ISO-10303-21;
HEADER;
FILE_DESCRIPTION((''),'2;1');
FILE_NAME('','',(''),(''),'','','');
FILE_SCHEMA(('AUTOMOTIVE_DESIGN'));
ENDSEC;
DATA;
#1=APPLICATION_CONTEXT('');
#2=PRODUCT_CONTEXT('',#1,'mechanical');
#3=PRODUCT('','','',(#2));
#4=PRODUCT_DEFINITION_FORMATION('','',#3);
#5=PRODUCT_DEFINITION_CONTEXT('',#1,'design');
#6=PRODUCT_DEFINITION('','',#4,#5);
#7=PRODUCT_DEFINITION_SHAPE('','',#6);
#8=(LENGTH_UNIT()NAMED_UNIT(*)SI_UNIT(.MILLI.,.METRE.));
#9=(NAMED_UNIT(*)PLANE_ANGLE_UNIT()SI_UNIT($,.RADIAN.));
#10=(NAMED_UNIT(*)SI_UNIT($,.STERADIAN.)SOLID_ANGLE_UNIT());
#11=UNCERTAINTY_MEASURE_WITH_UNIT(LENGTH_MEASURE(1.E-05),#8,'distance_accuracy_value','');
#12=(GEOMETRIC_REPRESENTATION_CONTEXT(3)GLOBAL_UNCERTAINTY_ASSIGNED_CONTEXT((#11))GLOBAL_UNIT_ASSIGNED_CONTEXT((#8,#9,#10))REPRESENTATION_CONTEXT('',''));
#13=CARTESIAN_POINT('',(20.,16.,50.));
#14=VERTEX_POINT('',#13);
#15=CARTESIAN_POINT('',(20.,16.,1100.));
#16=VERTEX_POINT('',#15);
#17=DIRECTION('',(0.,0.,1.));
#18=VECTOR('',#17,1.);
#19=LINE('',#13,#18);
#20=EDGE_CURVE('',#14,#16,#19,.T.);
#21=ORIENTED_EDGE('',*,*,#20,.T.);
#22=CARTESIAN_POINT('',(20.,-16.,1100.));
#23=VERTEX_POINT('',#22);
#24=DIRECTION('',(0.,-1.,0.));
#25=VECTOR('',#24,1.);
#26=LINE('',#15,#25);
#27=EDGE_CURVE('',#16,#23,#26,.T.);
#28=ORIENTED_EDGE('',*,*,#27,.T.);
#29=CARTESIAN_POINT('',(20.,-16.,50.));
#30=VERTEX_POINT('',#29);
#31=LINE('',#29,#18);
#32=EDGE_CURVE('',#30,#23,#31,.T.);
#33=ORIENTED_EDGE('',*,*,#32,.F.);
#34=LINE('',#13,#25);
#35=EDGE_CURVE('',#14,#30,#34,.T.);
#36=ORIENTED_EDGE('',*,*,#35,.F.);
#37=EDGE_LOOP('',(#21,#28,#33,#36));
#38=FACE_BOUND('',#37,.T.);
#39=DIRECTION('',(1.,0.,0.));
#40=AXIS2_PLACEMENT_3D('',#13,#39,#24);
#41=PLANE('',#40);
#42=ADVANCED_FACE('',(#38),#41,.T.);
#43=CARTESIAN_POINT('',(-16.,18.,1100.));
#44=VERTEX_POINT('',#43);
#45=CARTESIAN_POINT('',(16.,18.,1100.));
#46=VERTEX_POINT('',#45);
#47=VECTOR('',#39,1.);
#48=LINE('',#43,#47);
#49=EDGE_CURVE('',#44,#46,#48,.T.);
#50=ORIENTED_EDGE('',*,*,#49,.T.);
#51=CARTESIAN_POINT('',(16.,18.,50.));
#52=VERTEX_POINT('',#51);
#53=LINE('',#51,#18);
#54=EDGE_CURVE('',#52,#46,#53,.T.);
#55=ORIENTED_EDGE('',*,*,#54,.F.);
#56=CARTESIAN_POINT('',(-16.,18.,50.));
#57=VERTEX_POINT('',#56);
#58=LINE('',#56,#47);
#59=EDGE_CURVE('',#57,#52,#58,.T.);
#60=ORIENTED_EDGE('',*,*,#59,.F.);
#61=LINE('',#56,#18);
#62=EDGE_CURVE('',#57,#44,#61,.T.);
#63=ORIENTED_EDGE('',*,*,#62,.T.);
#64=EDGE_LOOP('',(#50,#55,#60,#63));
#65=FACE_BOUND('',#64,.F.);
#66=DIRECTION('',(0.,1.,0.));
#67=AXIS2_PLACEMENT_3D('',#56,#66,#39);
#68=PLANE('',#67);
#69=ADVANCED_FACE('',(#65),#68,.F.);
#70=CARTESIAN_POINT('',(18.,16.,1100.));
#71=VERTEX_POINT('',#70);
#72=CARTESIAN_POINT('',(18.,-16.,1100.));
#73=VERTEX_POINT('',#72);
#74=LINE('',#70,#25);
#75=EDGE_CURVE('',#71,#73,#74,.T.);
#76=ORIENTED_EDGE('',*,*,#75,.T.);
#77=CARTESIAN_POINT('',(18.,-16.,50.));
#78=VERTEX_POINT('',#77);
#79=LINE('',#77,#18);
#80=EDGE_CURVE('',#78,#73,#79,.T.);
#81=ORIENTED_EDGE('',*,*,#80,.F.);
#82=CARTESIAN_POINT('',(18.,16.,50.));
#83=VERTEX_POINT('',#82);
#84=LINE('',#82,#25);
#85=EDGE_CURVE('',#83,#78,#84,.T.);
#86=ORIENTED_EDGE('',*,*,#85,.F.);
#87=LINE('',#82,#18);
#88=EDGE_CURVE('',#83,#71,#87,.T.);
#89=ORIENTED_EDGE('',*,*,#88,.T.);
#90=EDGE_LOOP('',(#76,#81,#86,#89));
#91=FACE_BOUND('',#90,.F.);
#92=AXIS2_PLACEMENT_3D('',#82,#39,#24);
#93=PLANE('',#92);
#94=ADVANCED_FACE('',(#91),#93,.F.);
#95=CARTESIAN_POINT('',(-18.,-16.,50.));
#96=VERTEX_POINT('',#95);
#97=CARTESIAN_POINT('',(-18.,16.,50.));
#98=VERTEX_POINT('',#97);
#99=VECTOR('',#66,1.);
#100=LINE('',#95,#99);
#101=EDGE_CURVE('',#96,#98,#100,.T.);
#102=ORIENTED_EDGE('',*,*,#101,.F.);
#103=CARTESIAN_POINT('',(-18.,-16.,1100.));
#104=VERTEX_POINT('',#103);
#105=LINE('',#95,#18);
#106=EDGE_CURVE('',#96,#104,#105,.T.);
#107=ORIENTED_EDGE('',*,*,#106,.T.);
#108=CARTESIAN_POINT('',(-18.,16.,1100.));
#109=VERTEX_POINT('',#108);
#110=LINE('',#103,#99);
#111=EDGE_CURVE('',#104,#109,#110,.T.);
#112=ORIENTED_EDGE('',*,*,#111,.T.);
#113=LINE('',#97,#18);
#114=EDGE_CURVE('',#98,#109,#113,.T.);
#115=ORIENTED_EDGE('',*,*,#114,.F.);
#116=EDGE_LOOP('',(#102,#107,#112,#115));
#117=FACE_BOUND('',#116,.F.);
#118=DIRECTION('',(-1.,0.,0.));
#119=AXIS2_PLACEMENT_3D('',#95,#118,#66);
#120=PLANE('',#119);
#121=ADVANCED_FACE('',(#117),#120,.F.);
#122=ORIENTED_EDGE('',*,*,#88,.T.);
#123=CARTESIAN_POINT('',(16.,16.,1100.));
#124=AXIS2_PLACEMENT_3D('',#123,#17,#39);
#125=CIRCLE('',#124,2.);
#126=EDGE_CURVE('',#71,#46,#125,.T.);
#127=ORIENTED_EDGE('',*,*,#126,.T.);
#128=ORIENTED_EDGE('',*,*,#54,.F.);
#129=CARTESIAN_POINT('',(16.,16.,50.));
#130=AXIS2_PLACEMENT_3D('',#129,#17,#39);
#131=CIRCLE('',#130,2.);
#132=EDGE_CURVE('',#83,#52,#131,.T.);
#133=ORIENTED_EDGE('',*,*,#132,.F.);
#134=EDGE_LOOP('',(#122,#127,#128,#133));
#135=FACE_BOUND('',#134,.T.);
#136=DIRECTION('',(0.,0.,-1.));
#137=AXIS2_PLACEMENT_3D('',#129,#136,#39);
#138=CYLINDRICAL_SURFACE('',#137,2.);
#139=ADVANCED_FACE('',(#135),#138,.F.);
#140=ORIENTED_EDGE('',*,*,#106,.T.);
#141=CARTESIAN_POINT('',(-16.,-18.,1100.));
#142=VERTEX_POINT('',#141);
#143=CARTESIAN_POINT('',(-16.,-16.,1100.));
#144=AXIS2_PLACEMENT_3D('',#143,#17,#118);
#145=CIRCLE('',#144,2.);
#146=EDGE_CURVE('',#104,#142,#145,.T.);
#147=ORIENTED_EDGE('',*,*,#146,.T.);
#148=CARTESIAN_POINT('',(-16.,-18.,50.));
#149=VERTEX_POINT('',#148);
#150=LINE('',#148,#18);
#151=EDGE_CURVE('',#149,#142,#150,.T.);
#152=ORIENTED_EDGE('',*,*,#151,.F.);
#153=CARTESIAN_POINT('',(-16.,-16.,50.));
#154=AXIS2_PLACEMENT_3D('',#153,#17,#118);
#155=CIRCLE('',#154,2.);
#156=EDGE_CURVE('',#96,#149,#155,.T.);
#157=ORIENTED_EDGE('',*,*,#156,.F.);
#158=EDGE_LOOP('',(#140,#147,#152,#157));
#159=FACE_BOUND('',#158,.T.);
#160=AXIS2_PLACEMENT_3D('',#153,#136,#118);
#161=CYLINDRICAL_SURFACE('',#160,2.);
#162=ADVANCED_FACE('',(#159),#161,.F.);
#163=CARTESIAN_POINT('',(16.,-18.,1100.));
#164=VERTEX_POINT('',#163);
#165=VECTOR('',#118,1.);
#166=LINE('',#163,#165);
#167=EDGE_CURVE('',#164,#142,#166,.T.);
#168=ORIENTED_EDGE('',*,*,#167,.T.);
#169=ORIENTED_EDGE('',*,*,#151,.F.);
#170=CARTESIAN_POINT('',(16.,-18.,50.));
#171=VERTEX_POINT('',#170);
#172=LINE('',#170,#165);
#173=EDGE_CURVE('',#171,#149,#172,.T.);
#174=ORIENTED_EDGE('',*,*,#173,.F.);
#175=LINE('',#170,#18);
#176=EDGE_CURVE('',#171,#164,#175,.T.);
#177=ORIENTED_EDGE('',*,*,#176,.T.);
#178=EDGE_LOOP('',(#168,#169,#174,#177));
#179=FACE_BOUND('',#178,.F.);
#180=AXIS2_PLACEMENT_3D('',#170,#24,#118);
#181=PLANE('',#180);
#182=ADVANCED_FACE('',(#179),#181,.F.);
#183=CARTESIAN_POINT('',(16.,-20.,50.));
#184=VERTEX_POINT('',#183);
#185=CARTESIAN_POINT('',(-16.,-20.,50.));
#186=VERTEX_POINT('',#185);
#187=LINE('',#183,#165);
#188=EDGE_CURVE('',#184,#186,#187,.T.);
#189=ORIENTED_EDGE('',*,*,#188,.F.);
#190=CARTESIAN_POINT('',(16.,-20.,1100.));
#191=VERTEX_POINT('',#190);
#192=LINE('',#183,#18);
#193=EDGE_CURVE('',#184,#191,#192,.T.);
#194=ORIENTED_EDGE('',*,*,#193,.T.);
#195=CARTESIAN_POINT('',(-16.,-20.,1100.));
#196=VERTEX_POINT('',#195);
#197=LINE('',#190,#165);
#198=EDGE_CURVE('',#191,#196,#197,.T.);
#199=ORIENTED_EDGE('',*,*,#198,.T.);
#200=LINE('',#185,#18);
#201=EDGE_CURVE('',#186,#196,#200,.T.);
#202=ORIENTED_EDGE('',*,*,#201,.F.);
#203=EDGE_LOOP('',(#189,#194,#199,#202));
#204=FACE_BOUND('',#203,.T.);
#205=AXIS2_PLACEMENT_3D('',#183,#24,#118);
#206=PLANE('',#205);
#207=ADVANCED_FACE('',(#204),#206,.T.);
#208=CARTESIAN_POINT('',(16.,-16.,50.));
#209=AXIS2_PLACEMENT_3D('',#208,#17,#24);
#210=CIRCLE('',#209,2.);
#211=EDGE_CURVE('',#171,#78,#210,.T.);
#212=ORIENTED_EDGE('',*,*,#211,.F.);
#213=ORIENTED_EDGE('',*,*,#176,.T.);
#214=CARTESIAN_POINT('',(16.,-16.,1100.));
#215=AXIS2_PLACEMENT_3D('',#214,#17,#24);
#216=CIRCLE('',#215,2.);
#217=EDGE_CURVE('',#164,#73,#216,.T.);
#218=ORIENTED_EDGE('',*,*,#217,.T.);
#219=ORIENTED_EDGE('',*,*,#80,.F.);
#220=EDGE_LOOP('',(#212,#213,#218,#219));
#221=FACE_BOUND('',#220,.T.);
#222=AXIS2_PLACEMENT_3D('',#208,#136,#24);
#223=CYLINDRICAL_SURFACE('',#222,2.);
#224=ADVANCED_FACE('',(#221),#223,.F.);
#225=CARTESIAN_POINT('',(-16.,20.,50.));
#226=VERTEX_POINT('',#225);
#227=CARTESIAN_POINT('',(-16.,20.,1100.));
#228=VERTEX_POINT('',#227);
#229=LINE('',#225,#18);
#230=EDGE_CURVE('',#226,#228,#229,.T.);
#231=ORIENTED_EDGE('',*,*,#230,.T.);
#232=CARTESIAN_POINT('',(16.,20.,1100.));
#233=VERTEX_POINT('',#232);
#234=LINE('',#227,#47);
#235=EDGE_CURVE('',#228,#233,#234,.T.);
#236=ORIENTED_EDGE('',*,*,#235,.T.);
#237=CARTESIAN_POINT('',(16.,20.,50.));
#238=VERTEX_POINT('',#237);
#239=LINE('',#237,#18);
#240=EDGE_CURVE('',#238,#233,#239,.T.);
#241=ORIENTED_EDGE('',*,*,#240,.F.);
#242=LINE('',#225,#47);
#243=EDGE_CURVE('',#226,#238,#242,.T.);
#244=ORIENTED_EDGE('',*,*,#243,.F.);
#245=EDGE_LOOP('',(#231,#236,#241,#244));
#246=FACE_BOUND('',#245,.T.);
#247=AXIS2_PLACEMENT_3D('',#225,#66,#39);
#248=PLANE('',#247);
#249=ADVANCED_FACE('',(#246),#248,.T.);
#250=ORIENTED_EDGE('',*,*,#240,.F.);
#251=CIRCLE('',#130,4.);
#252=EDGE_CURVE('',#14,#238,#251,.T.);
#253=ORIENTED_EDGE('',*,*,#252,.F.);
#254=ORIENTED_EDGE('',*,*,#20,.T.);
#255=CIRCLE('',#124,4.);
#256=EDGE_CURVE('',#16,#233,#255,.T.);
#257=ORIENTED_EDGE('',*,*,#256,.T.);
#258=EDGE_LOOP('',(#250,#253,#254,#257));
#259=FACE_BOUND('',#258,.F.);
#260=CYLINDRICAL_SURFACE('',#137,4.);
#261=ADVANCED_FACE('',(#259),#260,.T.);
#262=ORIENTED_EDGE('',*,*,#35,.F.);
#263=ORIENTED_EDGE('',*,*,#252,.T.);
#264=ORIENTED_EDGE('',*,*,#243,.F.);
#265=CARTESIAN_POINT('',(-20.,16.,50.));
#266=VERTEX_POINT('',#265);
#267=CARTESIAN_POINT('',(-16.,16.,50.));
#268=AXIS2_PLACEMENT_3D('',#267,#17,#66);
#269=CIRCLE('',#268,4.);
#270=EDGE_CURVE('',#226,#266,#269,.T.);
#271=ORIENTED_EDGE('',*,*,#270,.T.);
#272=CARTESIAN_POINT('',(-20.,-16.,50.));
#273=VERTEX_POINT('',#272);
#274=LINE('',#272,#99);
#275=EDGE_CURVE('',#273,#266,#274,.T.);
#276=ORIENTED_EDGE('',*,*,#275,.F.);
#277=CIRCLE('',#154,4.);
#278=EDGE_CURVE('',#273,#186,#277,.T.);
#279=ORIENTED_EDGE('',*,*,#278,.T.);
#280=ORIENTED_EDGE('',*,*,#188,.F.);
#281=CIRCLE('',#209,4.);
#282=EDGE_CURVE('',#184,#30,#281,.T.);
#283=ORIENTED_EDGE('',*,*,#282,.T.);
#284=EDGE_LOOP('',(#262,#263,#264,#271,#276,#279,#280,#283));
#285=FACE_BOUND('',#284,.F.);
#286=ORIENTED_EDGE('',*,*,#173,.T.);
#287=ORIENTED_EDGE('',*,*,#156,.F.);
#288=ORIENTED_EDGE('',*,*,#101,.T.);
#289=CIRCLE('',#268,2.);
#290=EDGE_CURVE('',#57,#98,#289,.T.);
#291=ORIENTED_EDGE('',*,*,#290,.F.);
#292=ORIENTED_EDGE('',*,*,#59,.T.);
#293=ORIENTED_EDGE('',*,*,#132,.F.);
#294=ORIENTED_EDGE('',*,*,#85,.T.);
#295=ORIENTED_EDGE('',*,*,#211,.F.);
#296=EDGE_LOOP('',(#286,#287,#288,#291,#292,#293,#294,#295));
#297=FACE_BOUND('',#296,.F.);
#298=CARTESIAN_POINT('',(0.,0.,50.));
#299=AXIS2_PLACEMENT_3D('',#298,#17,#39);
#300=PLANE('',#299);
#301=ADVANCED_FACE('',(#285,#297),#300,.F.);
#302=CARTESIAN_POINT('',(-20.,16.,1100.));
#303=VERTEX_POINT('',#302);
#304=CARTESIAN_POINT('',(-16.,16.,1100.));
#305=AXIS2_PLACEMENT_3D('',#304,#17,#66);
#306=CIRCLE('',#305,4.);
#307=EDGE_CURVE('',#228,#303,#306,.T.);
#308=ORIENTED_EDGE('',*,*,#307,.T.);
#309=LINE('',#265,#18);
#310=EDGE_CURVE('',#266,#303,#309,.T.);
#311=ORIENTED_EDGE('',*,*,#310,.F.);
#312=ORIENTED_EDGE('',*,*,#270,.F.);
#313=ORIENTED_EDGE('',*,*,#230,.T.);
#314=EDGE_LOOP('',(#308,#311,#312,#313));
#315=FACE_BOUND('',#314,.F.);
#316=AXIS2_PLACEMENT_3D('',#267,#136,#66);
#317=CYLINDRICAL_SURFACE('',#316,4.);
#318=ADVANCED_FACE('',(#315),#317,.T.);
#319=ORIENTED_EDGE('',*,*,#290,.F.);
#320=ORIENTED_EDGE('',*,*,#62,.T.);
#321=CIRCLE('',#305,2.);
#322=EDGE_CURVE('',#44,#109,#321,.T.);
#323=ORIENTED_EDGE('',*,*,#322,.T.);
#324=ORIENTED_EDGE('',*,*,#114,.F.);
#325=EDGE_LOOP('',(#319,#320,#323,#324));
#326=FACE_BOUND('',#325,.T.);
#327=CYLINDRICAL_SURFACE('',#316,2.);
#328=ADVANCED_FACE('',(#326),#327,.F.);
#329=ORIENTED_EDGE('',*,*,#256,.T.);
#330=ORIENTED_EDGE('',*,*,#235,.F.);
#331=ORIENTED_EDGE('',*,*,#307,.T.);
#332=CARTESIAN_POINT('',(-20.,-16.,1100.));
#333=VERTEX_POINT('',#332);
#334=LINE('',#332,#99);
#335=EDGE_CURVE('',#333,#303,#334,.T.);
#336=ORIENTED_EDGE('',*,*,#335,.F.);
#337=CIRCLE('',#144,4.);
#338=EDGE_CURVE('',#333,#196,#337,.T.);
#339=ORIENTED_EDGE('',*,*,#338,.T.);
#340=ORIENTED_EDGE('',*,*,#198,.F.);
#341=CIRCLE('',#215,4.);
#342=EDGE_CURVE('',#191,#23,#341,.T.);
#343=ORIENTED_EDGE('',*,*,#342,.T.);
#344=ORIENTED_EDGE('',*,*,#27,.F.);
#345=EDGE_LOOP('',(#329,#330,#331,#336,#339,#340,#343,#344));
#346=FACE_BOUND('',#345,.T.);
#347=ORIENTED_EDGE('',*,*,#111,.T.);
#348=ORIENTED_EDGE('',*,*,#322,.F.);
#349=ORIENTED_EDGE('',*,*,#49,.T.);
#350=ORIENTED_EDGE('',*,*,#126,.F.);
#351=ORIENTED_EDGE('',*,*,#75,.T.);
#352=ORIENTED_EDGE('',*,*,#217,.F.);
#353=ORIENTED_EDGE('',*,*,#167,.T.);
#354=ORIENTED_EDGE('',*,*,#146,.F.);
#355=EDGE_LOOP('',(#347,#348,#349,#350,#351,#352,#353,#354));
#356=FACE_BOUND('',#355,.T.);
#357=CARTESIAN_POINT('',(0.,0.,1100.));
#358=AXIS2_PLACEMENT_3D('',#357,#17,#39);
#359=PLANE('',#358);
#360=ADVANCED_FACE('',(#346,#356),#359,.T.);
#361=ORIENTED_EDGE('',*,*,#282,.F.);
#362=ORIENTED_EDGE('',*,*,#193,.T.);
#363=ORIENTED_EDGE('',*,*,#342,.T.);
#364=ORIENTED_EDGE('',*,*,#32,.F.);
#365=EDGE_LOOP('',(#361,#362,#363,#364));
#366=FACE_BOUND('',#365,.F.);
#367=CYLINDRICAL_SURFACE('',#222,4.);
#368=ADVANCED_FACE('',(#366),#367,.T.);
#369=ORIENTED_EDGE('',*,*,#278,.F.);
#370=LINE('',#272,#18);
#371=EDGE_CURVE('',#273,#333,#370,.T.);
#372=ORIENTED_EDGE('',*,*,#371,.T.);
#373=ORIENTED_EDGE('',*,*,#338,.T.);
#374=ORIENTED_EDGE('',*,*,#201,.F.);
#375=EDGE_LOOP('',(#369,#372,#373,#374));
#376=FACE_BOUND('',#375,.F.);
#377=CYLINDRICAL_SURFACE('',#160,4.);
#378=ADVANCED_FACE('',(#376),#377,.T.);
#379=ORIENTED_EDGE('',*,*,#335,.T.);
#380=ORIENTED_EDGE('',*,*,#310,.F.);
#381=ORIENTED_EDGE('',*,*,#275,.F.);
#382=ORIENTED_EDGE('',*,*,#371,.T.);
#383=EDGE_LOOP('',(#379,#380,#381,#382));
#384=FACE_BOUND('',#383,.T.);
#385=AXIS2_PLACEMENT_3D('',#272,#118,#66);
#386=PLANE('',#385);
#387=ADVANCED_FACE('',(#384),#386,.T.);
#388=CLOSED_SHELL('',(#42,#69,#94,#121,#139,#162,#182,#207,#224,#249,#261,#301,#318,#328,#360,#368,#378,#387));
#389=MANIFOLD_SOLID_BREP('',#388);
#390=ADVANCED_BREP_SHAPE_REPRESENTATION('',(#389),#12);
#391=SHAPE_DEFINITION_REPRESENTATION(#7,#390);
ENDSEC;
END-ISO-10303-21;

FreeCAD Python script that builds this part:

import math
import FreeCAD as App
import Part
import Sketcher
from FreeCAD import Vector
Q = App.Units.Quantity

doc = App.newDocument("Part")
body = doc.addObject("PartDesign::Body", "Body")

# Sketch on XY plane
sketch1 = body.newObject("Sketcher::SketchObject", "Sketch")
sketch1.AttachmentSupport = (doc.getObject("XY_Plane"), [""])
sketch1.MapMode = "FlatFace"
sketch1.AttachmentOffset = App.Placement(Vector(0, 0, 50), App.Rotation())
sketch1.addGeometry(Part.LineSegment(Vector(-20, 16, 0), Vector(-20, -16, 0)), False)
sketch1.addGeometry(Part.ArcOfCircle(Part.Circle(Vector(-16, -16, 0), Vector(0, 0, 1), 4), math.radians(180), math.radians(270)), False)
sketch1.addGeometry(Part.LineSegment(Vector(-16, -20, 0), Vector(16, -20, 0)), False)
sketch1.addGeometry(Part.ArcOfCircle(Part.Circle(Vector(16, -16, 0), Vector(0, 0, 1), 4), math.radians(-90), math.radians(0)), False)
sketch1.addGeometry(Part.LineSegment(Vector(20, -16, 0), Vector(20, 16, 0)), False)
sketch1.addGeometry(Part.ArcOfCircle(Part.Circle(Vector(16, 16, 0), Vector(0, 0, 1), 4), math.radians(0), math.radians(90)), False)
sketch1.addGeometry(Part.LineSegment(Vector(16, 20, 0), Vector(-16, 20, 0)), False)
sketch1.addGeometry(Part.ArcOfCircle(Part.Circle(Vector(-16, 16, 0), Vector(0, 0, 1), 4), math.radians(90), math.radians(180)), False)
sketch1.addGeometry(Part.ArcOfCircle(Part.Circle(Vector(-16, 16, 0), Vector(0, 0, 1), 2), math.radians(90), math.radians(180)), False)
sketch1.addGeometry(Part.LineSegment(Vector(-16, 18, 0), Vector(16, 18, 0)), False)
sketch1.addGeometry(Part.ArcOfCircle(Part.Circle(Vector(16, 16, 0), Vector(0, 0, 1), 2), math.radians(0), math.radians(90)), False)
sketch1.addGeometry(Part.LineSegment(Vector(18, 16, 0), Vector(18, -16, 0)), False)
sketch1.addGeometry(Part.ArcOfCircle(Part.Circle(Vector(16, -16, 0), Vector(0, 0, 1), 2), math.radians(-90), math.radians(0)), False)
sketch1.addGeometry(Part.LineSegment(Vector(16, -18, 0), Vector(-16, -18, 0)), False)
sketch1.addGeometry(Part.ArcOfCircle(Part.Circle(Vector(-16, -16, 0), Vector(0, 0, 1), 2), math.radians(180), math.radians(270)), False)
sketch1.addGeometry(Part.LineSegment(Vector(-18, -16, 0), Vector(-18, 16, 0)), False)
sketch1.addConstraint(Sketcher.Constraint("Tangent", 0, 2, 1, 1))
sketch1.addConstraint(Sketcher.Constraint("Tangent", 1, 2, 2, 1))
sketch1.addConstraint(Sketcher.Constraint("Tangent", 2, 2, 3, 1))
sketch1.addConstraint(Sketcher.Constraint("Tangent", 3, 2, 4, 1))
sketch1.addConstraint(Sketcher.Constraint("Tangent", 4, 2, 5, 1))
sketch1.addConstraint(Sketcher.Constraint("Tangent", 5, 2, 6, 1))
sketch1.addConstraint(Sketcher.Constraint("Tangent", 6, 2, 7, 1))
sketch1.addConstraint(Sketcher.Constraint("Tangent", 7, 2, 0, 1))
sketch1.addConstraint(Sketcher.Constraint("Tangent", 8, 1, 9, 1))
sketch1.addConstraint(Sketcher.Constraint("Tangent", 9, 2, 10, 2))
sketch1.addConstraint(Sketcher.Constraint("Tangent", 10, 1, 11, 1))
sketch1.addConstraint(Sketcher.Constraint("Tangent", 11, 2, 12, 2))
sketch1.addConstraint(Sketcher.Constraint("Tangent", 12, 1, 13, 1))
sketch1.addConstraint(Sketcher.Constraint("Tangent", 13, 2, 14, 2))
sketch1.addConstraint(Sketcher.Constraint("Tangent", 14, 1, 15, 1))
sketch1.addConstraint(Sketcher.Constraint("Tangent", 15, 2, 8, 2))
sketch1.addConstraint(Sketcher.Constraint("Vertical", 0))
sketch1.addConstraint(Sketcher.Constraint("Horizontal", 2))
sketch1.addConstraint(Sketcher.Constraint("Vertical", 4))
sketch1.addConstraint(Sketcher.Constraint("Horizontal", 6))
sketch1.addConstraint(Sketcher.Constraint("Horizontal", 9))
sketch1.addConstraint(Sketcher.Constraint("Vertical", 11))
sketch1.addConstraint(Sketcher.Constraint("Horizontal", 13))
sketch1.addConstraint(Sketcher.Constraint("Vertical", 15))
sketch1.addConstraint(Sketcher.Constraint("Coincident", 8, 3, 7, 3))
sketch1.addConstraint(Sketcher.Constraint("Coincident", 10, 3, 5, 3))
sketch1.addConstraint(Sketcher.Constraint("Coincident", 12, 3, 3, 3))
sketch1.addConstraint(Sketcher.Constraint("Equal", 1, 3))
sketch1.addConstraint(Sketcher.Constraint("Equal", 3, 5))
sketch1.addConstraint(Sketcher.Constraint("Equal", 5, 7))
sketch1.addConstraint(Sketcher.Constraint("Equal", 12, 14))
sketch1.addConstraint(Sketcher.Constraint("Symmetric", 1, 3, 5, 3, -1, 1))
sketch1.addConstraint(Sketcher.Constraint("Equal", 13, 0))
sketch1.addConstraint(Sketcher.Constraint("Radius", 1, Q("4 mm")))
sketch1.addConstraint(Sketcher.Constraint("Radius", 8, Q("2 mm")))
sketch1.addConstraint(Sketcher.Constraint("DistanceX", 0, 2, -1, 1, Q("20 mm")))
pad1 = body.newObject("PartDesign::Pad", "Pad")
pad1.Profile = sketch1
pad1.Length = 1050

doc.recompute()
